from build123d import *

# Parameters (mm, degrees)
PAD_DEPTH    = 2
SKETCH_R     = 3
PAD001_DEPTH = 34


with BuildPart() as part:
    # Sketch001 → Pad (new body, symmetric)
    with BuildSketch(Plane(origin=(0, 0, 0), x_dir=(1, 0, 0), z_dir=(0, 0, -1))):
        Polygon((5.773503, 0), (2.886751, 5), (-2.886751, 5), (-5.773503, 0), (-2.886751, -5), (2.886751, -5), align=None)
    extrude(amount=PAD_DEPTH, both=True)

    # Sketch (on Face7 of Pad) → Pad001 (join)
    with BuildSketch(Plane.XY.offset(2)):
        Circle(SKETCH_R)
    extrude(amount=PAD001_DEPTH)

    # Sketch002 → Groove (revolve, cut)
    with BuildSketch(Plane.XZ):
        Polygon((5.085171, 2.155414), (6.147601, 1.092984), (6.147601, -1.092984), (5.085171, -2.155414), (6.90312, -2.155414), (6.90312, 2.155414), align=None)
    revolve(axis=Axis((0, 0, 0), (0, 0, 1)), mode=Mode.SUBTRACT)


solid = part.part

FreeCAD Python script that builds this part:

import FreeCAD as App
import Part
import Sketcher

V = App.Vector
Q = App.Units.Quantity


def add_polygon(sketch, points):
    """Adds a closed chain of lines whose ends are joined by coincident constraints."""
    first, n = sketch.GeometryCount, len(points)
    for a, b in zip(points, points[1:] + points[:1]):
        sketch.addGeometry(Part.LineSegment(App.Vector(*a, 0), App.Vector(*b, 0)), False)
    for i in range(n):
        sketch.addConstraint(Sketcher.Constraint("Coincident", first + i, 2, first + (i + 1) % n, 1))

doc = App.newDocument("Part")
body = doc.addObject("PartDesign::Body", "Body")

sketch1 = body.newObject("Sketcher::SketchObject", "Sketch")
sketch1.AttachmentSupport = (doc.getObject("XY_Plane"), [""])
sketch1.MapMode = "FlatFace"
add_polygon(sketch1, [(5.773503, 0), (2.886751, -5), (-2.886751, -5), (-5.773503, 0), (-2.886751, 5), (2.886751, 5)])
sketch1.addConstraint([
    Sketcher.Constraint("Horizontal", 1),
    Sketcher.Constraint("Horizontal", 4),
    Sketcher.Constraint("Symmetric", 0, 2, 3, 2, -1, 1),
    Sketcher.Constraint("Symmetric", 2, 2, 5, 2, -1, 1),
    Sketcher.Constraint("PointOnObject", 2, 2, -1),
    Sketcher.Constraint("Parallel", 2, 5),
    Sketcher.Constraint("Vertical", 1, 2, 3, 2),
    Sketcher.Constraint("Angle", 0, Q("-120.000006 deg")),
    Sketcher.Constraint("DistanceY", 0, 2, -1, 1, 5.0),
    Sketcher.Constraint("DistanceX", 1, 2, 1, 1, 5.773502),
])
pad1 = body.newObject("PartDesign::Pad", "Pad")
pad1.Profile = sketch1
pad1.Length = 4
pad1.Midplane = True

sketch2 = body.newObject("Sketcher::SketchObject", "Sketch001")
sketch2.AttachmentSupport = (doc.getObject("XY_Plane"), [""])
sketch2.MapMode = "FlatFace"
sketch2.AttachmentOffset = App.Placement(V(0, 0, 2), App.Rotation())
sketch2.addGeometry(Part.Circle(V(0, 0, 0), V(0, 0, 1), 3), False)
sketch2.addConstraint([
    Sketcher.Constraint("Coincident", 0, 3, -1, 1),
    Sketcher.Constraint("Diameter", 0, 6.0),
])
pad2 = body.newObject("PartDesign::Pad", "Pad001")
pad2.Profile = sketch2
pad2.Length = 34

sketch3 = body.newObject("Sketcher::SketchObject", "Sketch002")
sketch3.AttachmentSupport = (doc.getObject("XZ_Plane"), [""])
sketch3.MapMode = "FlatFace"
add_polygon(sketch3, [(5.085171, 2.155414), (6.147601, 1.092984), (6.147601, -1.092984), (5.085171, -2.155414), (6.90312, -2.155414), (6.90312, 2.155414)])
sketch3.addConstraint([
    Sketcher.Constraint("Vertical", 1),
    Sketcher.Constraint("Horizontal", 3),
    Sketcher.Constraint("Vertical", 4),
    Sketcher.Constraint("Horizontal", 5),
    Sketcher.Constraint("Symmetric", 2, 2, 5, 2, -1),
    Sketcher.Constraint("Perpendicular", 0, 2),
    Sketcher.Constraint("Equal", 0, 2),
    Sketcher.Constraint("DistanceX", 3, 1, 3, 2, 1.817949),
    Sketcher.Constraint("DistanceX", -1, 1, 0, 2, 6.147601),
    Sketcher.Constraint("DistanceY", 1, 2, 1, 1, 2.185968),
    Sketcher.Constraint("DistanceY", 4, 1, 4, 2, 4.310828),
])
groove = body.newObject("PartDesign::Groove", "Groove")
groove.Profile = sketch3
groove.ReferenceAxis = (sketch3, ["V_Axis"])
groove.Angle = 360

doc.recompute()
